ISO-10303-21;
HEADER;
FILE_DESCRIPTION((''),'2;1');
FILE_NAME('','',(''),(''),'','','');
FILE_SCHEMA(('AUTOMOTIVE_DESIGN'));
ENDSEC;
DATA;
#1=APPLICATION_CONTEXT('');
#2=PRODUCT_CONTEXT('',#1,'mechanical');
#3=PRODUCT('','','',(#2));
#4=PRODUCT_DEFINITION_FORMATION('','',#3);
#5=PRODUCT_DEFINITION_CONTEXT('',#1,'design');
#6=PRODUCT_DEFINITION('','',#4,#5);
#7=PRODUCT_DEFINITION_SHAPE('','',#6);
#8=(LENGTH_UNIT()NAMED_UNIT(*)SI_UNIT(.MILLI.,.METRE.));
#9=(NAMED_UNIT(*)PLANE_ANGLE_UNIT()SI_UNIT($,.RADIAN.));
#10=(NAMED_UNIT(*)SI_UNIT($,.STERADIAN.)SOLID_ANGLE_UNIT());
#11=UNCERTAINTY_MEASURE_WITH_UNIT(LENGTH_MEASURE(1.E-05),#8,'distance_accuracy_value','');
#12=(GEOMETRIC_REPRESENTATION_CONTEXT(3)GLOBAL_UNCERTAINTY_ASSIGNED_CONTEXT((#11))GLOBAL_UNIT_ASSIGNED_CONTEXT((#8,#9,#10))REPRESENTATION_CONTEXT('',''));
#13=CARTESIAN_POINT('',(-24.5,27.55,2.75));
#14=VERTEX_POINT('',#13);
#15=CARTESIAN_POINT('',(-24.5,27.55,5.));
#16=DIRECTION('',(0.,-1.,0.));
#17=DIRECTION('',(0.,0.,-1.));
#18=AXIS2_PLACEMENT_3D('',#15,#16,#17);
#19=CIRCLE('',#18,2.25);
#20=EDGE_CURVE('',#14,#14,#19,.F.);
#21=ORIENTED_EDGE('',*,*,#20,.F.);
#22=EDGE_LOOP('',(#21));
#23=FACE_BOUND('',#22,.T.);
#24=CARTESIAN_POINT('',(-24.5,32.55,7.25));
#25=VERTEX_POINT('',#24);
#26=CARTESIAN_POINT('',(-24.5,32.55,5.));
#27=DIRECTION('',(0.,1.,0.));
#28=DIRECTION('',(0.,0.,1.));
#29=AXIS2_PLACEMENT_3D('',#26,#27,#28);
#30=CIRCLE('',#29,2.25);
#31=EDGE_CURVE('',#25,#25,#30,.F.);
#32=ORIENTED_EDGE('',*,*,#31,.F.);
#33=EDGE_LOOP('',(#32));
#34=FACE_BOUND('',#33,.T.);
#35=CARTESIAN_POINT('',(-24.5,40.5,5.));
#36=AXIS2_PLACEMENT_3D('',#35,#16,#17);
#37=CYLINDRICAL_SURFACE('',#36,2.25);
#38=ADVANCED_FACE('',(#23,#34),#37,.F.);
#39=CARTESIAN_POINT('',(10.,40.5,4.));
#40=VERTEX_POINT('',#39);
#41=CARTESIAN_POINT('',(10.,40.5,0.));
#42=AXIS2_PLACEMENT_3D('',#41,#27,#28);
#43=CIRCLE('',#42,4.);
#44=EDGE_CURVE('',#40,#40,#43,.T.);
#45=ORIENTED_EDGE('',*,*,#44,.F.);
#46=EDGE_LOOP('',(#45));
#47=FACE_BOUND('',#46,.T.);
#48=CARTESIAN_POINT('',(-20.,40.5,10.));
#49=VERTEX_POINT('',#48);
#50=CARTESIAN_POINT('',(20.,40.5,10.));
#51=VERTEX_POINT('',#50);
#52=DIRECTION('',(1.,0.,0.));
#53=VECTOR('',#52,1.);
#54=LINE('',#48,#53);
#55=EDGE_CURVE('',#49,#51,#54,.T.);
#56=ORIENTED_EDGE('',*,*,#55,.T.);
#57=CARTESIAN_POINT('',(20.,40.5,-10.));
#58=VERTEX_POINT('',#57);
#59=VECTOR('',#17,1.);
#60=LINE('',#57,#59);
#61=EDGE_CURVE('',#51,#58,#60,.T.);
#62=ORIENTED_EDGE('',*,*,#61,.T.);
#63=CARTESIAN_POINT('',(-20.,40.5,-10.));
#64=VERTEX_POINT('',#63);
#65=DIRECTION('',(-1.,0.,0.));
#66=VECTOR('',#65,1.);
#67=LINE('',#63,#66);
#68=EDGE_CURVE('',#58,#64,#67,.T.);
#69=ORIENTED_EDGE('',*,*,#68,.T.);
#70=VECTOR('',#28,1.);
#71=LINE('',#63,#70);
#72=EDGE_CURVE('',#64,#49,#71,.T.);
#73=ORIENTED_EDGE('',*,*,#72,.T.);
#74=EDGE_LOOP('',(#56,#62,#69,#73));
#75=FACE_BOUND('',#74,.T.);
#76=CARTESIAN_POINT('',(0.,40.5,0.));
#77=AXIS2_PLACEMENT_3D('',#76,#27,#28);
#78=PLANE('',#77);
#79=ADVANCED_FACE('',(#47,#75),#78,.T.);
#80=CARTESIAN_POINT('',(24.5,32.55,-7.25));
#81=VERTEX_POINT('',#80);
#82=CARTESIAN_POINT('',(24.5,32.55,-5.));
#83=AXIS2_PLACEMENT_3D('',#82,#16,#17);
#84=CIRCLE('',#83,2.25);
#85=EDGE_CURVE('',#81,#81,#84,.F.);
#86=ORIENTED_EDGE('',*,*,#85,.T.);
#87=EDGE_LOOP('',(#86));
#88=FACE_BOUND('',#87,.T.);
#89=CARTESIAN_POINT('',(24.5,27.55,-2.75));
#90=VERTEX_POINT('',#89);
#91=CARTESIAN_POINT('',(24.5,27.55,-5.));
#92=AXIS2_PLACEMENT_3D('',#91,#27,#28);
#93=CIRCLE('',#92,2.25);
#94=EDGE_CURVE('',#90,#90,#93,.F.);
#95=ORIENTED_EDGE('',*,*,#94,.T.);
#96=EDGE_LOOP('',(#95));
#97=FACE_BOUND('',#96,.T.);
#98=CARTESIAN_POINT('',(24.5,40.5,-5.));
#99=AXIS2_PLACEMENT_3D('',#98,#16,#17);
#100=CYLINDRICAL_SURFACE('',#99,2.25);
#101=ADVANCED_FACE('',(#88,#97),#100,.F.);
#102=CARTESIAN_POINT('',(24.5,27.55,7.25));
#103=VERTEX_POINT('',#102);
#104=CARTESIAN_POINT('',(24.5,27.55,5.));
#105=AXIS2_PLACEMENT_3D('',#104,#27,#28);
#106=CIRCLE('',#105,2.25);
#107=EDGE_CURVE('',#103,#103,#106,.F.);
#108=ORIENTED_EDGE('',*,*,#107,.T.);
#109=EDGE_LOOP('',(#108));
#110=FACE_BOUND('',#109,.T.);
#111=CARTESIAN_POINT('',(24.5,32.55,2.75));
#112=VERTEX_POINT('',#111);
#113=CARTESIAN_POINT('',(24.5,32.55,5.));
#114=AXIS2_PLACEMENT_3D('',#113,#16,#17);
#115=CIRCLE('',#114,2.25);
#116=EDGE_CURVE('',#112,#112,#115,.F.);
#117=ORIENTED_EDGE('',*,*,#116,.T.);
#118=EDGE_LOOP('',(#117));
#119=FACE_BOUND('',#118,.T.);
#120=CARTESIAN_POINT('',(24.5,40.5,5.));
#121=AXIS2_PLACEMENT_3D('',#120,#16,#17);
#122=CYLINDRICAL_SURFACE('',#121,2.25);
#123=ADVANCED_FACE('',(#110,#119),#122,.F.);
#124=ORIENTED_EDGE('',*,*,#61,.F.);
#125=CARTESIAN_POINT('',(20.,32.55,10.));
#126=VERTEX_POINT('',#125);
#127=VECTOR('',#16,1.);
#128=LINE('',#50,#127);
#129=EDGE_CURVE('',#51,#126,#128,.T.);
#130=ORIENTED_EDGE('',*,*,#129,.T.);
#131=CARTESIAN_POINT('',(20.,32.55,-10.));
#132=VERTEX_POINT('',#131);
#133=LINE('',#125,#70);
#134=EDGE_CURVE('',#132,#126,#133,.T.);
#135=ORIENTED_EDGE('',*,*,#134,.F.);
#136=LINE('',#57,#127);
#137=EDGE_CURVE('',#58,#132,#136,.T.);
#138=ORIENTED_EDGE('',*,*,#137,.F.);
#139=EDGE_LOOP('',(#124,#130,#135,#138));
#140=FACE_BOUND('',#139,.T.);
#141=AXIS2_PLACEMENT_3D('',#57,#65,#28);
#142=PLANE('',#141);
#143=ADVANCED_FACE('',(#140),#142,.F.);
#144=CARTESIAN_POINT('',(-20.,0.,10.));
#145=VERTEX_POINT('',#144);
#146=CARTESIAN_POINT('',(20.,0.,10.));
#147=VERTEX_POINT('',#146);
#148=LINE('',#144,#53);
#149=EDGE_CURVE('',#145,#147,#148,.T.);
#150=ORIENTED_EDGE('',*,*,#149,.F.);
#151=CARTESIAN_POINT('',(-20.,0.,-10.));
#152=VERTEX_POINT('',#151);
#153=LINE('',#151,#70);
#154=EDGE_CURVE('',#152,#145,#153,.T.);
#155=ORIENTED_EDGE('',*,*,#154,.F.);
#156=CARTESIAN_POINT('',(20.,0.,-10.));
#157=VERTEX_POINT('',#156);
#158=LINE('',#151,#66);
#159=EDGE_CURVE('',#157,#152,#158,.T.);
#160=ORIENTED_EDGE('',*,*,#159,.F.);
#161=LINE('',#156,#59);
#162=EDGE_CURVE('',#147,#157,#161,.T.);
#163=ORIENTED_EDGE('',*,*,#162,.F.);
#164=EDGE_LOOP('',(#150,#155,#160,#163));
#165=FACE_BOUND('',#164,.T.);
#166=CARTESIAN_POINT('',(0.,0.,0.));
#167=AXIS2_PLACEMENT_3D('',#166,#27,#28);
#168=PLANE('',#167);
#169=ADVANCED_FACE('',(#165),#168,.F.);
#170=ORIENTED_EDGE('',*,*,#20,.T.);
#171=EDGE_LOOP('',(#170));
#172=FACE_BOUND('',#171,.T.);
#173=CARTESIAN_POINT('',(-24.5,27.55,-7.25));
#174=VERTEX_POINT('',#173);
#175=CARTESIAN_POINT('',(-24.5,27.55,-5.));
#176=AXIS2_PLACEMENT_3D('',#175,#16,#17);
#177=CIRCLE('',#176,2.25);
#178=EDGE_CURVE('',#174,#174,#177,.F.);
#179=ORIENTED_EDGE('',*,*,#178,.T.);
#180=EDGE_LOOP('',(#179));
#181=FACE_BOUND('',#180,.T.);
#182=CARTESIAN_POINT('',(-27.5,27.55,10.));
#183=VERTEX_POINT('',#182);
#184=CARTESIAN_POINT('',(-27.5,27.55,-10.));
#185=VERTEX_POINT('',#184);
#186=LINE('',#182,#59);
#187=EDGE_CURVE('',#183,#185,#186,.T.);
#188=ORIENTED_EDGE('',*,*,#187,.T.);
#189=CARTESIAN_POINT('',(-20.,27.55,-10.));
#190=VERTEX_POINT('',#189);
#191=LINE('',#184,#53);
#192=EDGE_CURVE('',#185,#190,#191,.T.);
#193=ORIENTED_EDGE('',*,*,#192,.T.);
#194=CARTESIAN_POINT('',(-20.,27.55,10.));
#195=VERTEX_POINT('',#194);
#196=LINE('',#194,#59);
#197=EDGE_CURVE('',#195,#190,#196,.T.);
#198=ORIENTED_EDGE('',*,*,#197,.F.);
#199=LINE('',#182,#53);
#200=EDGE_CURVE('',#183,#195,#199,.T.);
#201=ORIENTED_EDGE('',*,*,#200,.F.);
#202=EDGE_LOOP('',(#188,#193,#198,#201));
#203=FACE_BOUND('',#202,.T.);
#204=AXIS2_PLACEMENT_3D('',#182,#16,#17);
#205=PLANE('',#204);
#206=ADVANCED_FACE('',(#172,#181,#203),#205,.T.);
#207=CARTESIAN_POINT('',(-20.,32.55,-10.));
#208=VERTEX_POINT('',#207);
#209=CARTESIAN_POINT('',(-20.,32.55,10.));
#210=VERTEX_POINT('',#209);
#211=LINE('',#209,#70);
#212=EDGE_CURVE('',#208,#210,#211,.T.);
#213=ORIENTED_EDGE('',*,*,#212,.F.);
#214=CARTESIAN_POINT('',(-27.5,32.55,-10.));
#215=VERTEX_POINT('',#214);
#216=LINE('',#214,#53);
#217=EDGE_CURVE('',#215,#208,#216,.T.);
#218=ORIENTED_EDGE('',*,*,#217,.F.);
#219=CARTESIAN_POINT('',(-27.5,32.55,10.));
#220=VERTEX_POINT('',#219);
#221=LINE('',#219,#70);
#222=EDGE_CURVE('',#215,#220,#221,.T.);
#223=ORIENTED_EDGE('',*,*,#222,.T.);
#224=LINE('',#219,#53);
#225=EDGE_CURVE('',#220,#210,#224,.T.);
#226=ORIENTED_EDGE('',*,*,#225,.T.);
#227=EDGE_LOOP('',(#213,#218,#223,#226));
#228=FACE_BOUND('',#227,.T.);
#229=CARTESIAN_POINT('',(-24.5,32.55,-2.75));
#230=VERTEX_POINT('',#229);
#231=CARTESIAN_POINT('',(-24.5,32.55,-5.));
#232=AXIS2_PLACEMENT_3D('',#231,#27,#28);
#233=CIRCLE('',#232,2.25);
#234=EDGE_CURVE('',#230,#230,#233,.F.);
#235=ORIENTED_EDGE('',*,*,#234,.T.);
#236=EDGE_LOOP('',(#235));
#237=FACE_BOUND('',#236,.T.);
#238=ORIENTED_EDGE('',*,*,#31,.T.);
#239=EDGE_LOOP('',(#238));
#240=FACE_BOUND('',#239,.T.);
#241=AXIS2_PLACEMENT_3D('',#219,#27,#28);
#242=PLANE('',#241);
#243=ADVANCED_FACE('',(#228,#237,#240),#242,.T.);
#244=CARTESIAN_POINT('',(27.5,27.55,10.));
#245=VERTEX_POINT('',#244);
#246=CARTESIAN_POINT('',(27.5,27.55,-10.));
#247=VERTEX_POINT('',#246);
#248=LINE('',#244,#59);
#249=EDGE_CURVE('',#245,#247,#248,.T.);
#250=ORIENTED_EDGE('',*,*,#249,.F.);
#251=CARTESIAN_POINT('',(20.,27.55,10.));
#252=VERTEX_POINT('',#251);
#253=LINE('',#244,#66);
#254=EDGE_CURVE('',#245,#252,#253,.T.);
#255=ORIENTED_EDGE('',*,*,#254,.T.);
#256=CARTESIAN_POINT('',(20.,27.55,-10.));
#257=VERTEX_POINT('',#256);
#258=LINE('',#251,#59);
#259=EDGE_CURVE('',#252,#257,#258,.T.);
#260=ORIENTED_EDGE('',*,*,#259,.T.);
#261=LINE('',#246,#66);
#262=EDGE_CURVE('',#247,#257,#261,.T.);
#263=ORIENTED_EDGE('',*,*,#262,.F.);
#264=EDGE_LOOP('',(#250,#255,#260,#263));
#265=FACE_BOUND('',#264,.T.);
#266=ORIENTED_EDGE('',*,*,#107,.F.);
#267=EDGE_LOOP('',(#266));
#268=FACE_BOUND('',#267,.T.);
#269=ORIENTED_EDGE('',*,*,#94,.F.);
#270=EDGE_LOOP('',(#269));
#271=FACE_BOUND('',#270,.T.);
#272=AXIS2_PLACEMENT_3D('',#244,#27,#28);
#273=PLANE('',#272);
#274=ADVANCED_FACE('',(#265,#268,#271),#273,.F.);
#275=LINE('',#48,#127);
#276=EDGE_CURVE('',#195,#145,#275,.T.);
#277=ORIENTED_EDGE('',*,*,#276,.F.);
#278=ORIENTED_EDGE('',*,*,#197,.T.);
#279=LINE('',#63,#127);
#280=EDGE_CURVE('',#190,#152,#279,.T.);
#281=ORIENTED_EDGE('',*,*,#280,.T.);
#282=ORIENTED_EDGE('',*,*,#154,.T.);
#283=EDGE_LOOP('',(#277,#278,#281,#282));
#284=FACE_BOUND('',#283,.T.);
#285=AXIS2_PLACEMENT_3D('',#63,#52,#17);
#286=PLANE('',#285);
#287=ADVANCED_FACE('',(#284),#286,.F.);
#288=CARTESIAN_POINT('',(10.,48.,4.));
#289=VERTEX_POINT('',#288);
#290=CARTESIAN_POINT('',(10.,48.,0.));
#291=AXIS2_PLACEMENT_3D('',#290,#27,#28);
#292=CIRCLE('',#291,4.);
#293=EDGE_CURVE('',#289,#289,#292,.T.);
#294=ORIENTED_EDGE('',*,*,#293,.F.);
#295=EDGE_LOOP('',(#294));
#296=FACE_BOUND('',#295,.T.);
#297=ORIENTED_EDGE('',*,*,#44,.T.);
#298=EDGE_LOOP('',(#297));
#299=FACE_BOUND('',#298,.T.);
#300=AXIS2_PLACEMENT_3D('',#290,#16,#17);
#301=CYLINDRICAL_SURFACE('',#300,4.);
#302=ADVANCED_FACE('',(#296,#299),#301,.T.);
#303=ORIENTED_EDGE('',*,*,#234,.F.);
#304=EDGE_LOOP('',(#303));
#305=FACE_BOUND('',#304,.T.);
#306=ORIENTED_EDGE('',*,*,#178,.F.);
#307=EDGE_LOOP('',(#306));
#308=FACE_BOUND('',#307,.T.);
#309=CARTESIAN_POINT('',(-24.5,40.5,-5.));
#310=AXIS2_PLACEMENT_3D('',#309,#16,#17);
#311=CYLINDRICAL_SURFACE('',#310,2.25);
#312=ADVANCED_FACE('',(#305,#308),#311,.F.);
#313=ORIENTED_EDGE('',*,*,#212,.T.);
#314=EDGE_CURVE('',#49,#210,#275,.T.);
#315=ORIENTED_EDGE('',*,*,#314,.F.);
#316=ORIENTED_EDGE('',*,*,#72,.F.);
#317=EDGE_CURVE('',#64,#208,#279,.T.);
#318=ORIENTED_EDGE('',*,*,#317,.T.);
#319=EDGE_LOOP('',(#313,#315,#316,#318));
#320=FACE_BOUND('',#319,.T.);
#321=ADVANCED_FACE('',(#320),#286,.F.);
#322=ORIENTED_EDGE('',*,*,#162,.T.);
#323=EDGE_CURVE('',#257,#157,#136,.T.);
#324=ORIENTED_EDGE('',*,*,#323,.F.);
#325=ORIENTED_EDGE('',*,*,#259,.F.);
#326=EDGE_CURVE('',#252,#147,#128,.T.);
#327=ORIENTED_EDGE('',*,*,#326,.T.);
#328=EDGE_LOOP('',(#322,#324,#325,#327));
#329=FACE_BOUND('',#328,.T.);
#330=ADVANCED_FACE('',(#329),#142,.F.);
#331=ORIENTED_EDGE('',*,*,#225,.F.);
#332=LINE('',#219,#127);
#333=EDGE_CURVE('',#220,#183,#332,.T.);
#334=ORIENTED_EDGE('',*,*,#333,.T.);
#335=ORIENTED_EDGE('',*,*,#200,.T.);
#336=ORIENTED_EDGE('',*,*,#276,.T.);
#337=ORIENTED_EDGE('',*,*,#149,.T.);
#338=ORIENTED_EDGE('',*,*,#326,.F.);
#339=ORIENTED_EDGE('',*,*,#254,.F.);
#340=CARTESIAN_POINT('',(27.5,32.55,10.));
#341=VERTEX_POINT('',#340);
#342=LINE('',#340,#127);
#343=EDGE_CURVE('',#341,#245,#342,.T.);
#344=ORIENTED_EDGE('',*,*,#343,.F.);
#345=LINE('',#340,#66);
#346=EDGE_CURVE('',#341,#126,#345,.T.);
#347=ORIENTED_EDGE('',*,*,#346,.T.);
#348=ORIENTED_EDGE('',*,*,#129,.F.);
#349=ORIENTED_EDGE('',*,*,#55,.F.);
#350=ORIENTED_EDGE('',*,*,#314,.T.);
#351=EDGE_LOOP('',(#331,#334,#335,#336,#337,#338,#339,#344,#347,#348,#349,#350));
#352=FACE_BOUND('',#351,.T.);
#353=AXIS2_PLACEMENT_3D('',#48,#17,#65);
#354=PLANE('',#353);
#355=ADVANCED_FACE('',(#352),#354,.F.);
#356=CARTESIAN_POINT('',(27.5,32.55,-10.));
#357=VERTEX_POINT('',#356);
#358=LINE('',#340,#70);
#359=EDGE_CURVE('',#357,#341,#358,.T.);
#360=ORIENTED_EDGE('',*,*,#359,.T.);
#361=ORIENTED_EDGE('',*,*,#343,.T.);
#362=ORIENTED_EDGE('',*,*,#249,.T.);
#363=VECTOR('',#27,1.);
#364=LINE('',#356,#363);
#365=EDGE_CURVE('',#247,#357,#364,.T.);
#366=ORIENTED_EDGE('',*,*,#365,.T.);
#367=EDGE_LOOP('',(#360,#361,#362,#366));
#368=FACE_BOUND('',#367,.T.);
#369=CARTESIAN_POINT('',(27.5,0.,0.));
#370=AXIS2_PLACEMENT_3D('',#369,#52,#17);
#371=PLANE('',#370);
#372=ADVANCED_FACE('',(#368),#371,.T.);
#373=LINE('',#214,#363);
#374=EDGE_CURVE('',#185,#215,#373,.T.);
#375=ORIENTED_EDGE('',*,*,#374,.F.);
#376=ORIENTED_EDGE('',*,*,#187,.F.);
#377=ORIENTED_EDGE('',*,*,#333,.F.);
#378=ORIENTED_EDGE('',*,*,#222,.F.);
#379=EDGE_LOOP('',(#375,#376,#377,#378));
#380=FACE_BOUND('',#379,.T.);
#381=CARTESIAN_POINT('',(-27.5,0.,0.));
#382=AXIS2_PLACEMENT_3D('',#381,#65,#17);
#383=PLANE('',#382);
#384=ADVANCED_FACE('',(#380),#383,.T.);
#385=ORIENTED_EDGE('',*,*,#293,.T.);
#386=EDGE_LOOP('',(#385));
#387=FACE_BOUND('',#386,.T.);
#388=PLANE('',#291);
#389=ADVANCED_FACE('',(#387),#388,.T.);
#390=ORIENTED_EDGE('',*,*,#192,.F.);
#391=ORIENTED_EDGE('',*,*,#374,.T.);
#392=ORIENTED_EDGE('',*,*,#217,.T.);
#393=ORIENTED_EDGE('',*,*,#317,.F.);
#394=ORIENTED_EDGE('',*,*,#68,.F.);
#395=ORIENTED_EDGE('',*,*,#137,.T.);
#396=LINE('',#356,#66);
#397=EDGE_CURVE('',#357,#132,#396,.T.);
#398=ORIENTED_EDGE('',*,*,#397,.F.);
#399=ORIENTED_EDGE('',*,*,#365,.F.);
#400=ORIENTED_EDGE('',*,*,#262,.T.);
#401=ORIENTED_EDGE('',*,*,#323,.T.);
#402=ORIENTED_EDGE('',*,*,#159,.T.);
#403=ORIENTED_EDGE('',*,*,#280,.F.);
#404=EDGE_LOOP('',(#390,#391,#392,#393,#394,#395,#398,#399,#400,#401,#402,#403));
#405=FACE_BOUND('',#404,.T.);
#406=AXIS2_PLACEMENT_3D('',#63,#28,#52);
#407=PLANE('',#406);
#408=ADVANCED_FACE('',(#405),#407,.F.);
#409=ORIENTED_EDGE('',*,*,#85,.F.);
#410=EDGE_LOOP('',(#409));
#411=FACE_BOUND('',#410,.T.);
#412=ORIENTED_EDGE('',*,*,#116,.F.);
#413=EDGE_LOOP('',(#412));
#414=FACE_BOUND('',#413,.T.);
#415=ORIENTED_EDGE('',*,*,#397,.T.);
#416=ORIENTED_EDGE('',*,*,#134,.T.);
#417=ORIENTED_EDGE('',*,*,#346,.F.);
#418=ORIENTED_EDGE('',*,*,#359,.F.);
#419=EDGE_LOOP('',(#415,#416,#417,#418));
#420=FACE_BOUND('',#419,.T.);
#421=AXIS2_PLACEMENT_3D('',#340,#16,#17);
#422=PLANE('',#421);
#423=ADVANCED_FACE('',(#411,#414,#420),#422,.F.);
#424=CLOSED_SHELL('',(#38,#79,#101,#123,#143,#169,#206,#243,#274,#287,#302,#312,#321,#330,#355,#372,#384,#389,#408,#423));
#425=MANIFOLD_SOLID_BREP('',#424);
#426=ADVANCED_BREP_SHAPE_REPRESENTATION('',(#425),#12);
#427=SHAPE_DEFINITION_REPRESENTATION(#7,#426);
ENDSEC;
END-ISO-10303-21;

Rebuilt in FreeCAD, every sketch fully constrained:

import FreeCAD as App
import Part
import Sketcher

V = App.Vector


def add_polygon(sketch, points):
    """Adds a closed chain of lines whose ends are joined by coincident constraints."""
    first, n = sketch.GeometryCount, len(points)
    for a, b in zip(points, points[1:] + points[:1]):
        sketch.addGeometry(Part.LineSegment(App.Vector(*a, 0), App.Vector(*b, 0)), False)
    for i in range(n):
        sketch.addConstraint(Sketcher.Constraint("Coincident", first + i, 2, first + (i + 1) % n, 1))

doc = App.newDocument("Part")
body = doc.addObject("PartDesign::Body", "Body")

sketch1 = doc.addObject("Sketcher::SketchObject", "Sketch")
body.addObject(sketch1)
sketch1.AttachmentSupport = (doc.XZ_Plane, [""])
sketch1.MapMode = "FlatFace"
add_polygon(sketch1, [(-20, -10), (-20, 10), (20, 10), (20, -10)])
sketch1.addConstraint(Sketcher.Constraint("Vertical", 0))
sketch1.addConstraint(Sketcher.Constraint("Horizontal", 1))
sketch1.addConstraint(Sketcher.Constraint("Vertical", 2))
sketch1.addConstraint(Sketcher.Constraint("Horizontal", 3))
sketch1.addConstraint(Sketcher.Constraint("Symmetric", 0, 2, 2, 2, -1, 1))
sketch1.addConstraint(Sketcher.Constraint("DistanceX", 1, 1, 1, 2, 40.0))
sketch1.addConstraint(Sketcher.Constraint("DistanceY", 0, 1, 0, 2, 20.0))
pad1 = doc.addObject("PartDesign::Pad", "Pad")
body.addObject(pad1)
pad1.Profile = sketch1
pad1.Length = 40.5
pad1.Reversed = True

sketch2 = doc.addObject("Sketcher::SketchObject", "Sketch001")
body.addObject(sketch2)
sketch2.AttachmentSupport = (doc.YZ_Plane, [""])
sketch2.MapMode = "FlatFace"
sketch2.AttachmentOffset = App.Placement(V(0, 0, 20), App.Rotation())
add_polygon(sketch2, [(32.5, 10), (27.6, 10), (27.6, -10), (32.5, -10)])
sketch2.addConstraint(Sketcher.Constraint("Horizontal", 0))
sketch2.addConstraint(Sketcher.Constraint("Vertical", 1))
sketch2.addConstraint(Sketcher.Constraint("Horizontal", 2))
sketch2.addConstraint(Sketcher.Constraint("Vertical", 3))
sketch2.addConstraint(Sketcher.Constraint("DistanceX", 0, 2, 0, 1, 5.0))
sketch2.addConstraint(Sketcher.Constraint("DistanceY", 1, 2, 1, 1, 20.0))
sketch2.addConstraint(Sketcher.Constraint("DistanceY", -1, 1, 0, 2, 10.0))
sketch2.addConstraint(Sketcher.Constraint("DistanceX", -1, 1, 0, 2, 27.55))
pad2 = doc.addObject("PartDesign::Pad", "Pad001")
body.addObject(pad2)
pad2.Profile = sketch2
pad2.Length = 7.5
doc.recompute()

mirrored = doc.addObject("PartDesign::Mirrored", "Mirrored")
body.addObject(mirrored)
mirrored.Originals = [pad2]
mirrored.MirrorPlane = (doc.YZ_Plane, [""])
body.Tip = mirrored

sketch3 = doc.addObject("Sketcher::SketchObject", "Sketch002")
body.addObject(sketch3)
sketch3.AttachmentSupport = (doc.XZ_Plane, [""])
sketch3.MapMode = "FlatFace"
sketch3.addGeometry(Part.Circle(V(-24.5, -5, 0), V(0, 0, 1), 2.2), False)
sketch3.addGeometry(Part.Circle(V(24.5, -5, 0), V(0, 0, 1), 2.2), False)
sketch3.addGeometry(Part.Circle(V(24.5, 5, 0), V(0, 0, 1), 2.2), False)
sketch3.addGeometry(Part.Circle(V(-24.5, 5, 0), V(0, 0, 1), 2.2), False)
sketch3.addConstraint(Sketcher.Constraint("Equal", 0, 1))
sketch3.addConstraint(Sketcher.Constraint("Equal", 1, 2))
sketch3.addConstraint(Sketcher.Constraint("Equal", 2, 3))
sketch3.addConstraint(Sketcher.Constraint("Symmetric", 0, 3, 2, 3, -1, 1))
sketch3.addConstraint(Sketcher.Constraint("Symmetric", 1, 3, 3, 3, -1, 1))
sketch3.addConstraint(Sketcher.Constraint("Symmetric", 0, 3, 1, 3, -2))
sketch3.addConstraint(Sketcher.Constraint("Diameter", 0, 4.5))
sketch3.addConstraint(Sketcher.Constraint("DistanceY", 0, 3, -1, 1, 5.0))
sketch3.addConstraint(Sketcher.Constraint("DistanceX", 0, 3, 1, 3, 49.0))
pocket1 = doc.addObject("PartDesign::Pocket", "Pocket")
body.addObject(pocket1)
pocket1.Profile = sketch3
pocket1.Type = "ThroughAll"

sketch4 = doc.addObject("Sketcher::SketchObject", "Sketch003")
body.addObject(sketch4)
sketch4.AttachmentSupport = (doc.XZ_Plane, [""])
sketch4.MapMode = "FlatFace"
sketch4.AttachmentOffset = App.Placement(V(0, 0, -40.5), App.Rotation())
sketch4.addGeometry(Part.Circle(V(10, 0, 0), V(0, 0, 1), 4), False)
sketch4.addConstraint(Sketcher.Constraint("PointOnObject", 0, 3, -1))
sketch4.addConstraint(Sketcher.Constraint("Diameter", 0, 8.0))
sketch4.addConstraint(Sketcher.Constraint("DistanceX", -1, 1, 0, 3, 10.0))
pad3 = doc.addObject("PartDesign::Pad", "Pad002")
body.addObject(pad3)
pad3.Profile = sketch4
pad3.Length = 7.5
pad3.Reversed = True

doc.recompute()
